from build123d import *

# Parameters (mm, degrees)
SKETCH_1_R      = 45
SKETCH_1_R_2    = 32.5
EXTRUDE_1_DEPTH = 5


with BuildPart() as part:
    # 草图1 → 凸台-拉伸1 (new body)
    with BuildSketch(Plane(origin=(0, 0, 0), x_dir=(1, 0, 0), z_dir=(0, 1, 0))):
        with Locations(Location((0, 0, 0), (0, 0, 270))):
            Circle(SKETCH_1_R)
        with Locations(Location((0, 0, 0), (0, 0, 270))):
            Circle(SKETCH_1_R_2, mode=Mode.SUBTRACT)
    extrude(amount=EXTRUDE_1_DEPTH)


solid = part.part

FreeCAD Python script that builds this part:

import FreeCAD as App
import Part
import Sketcher

V = App.Vector
Q = App.Units.Quantity

doc = App.newDocument("Part")
body = doc.addObject("PartDesign::Body", "Body")

sketch1 = doc.addObject("Sketcher::SketchObject", "Sketch")
body.addObject(sketch1)
sketch1.AttachmentSupport = (doc.XZ_Plane, [""])
sketch1.MapMode = "FlatFace"
sketch1.addGeometry([
    Part.Circle(V(0, 0, 0), V(0, 0, 1), 45),
    Part.Circle(V(0, 0, 0), V(0, 0, 1), 32.5),
], False)
sketch1.addConstraint([
    Sketcher.Constraint("Coincident", 0, 3, -1, 1),
    Sketcher.Constraint("Coincident", 1, 3, -1, 1),
    Sketcher.Constraint("Diameter", 0, Q("90 mm")),
    Sketcher.Constraint("Diameter", 1, Q("65 mm")),
])
pad1 = doc.addObject("PartDesign::Pad", "Pad")
body.addObject(pad1)
pad1.Profile = sketch1
pad1.Length = 5
pad1.Reversed = True

doc.recompute()
